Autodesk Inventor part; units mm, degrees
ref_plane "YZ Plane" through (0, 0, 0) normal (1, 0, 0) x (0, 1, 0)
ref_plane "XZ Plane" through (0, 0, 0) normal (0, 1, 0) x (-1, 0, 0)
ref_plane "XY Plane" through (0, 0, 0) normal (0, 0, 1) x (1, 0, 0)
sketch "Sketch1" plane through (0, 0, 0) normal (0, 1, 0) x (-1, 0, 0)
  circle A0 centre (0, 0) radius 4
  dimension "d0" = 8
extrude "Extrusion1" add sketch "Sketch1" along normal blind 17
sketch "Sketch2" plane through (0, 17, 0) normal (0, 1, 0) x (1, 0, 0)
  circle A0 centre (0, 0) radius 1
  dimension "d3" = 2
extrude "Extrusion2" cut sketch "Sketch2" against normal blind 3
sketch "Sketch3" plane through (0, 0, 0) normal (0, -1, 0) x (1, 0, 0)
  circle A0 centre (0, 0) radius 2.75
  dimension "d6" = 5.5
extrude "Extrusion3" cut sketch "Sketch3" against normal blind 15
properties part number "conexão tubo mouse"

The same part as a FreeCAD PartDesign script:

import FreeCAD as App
import Part
import Sketcher
from FreeCAD import Vector
Q = App.Units.Quantity

doc = App.newDocument("Part")
body = doc.addObject("PartDesign::Body", "Body")

sketch1 = body.newObject("Sketcher::SketchObject", "Sketch")
sketch1.AttachmentSupport = (doc.getObject("XZ_Plane"), [""])
sketch1.MapMode = "FlatFace"
sketch1.addGeometry(Part.Circle(Vector(0, 0, 0), Vector(0, 0, 1), 4), False)
sketch1.addConstraint([
    Sketcher.Constraint("Coincident", 0, 3, -1, 1),
    Sketcher.Constraint("Diameter", 0, Q("8 mm")),
])
pad1 = body.newObject("PartDesign::Pad", "Pad")
pad1.Profile = sketch1
pad1.Length = 17
pad1.Reversed = True

sketch2 = body.newObject("Sketcher::SketchObject", "Sketch001")
sketch2.AttachmentSupport = (doc.getObject("XZ_Plane"), [""])
sketch2.MapMode = "FlatFace"
sketch2.AttachmentOffset = App.Placement(Vector(0, 0, -17), App.Rotation())
sketch2.addGeometry(Part.Circle(Vector(0, 0, 0), Vector(0, 0, 1), 1), False)
sketch2.addConstraint([
    Sketcher.Constraint("Coincident", 0, 3, -1, 1),
    Sketcher.Constraint("Diameter", 0, Q("2 mm")),
])
pocket1 = body.newObject("PartDesign::Pocket", "Pocket")
pocket1.Profile = sketch2
pocket1.Length = 3
pocket1.Reversed = True

sketch3 = body.newObject("Sketcher::SketchObject", "Sketch002")
sketch3.AttachmentSupport = (doc.getObject("XZ_Plane"), [""])
sketch3.MapMode = "FlatFace"
sketch3.addGeometry(Part.Circle(Vector(0, 0, 0), Vector(0, 0, 1), 2.8), False)
sketch3.addConstraint([
    Sketcher.Constraint("Coincident", 0, 3, -1, 1),
    Sketcher.Constraint("Diameter", 0, Q("5.5 mm")),
])
pocket2 = body.newObject("PartDesign::Pocket", "Pocket001")
pocket2.Profile = sketch3
pocket2.Length = 15

doc.recompute()
